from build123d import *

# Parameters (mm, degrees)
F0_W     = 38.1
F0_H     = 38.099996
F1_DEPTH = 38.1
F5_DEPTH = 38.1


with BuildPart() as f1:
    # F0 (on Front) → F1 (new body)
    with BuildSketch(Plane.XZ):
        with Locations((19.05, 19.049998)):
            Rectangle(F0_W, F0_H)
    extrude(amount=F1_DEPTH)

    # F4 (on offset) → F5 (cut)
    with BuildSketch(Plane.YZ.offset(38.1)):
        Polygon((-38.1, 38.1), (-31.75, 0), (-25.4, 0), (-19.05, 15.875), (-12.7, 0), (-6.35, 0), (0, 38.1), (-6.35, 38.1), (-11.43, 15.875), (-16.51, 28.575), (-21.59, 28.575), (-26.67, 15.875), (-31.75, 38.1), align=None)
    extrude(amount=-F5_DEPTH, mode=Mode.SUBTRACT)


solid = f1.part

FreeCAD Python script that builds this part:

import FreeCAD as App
import Part
import Sketcher
from FreeCAD import Vector
Q = App.Units.Quantity


def add_polygon(sketch, points):
    """Adds a closed chain of lines whose ends are joined by coincident constraints."""
    first, n = sketch.GeometryCount, len(points)
    for a, b in zip(points, points[1:] + points[:1]):
        sketch.addGeometry(Part.LineSegment(App.Vector(*a, 0), App.Vector(*b, 0)), False)
    for i in range(n):
        sketch.addConstraint(Sketcher.Constraint("Coincident", first + i, 2, first + (i + 1) % n, 1))

doc = App.newDocument("Part")
body = doc.addObject("PartDesign::Body", "Body")
body.AllowCompound = True

# Sketch on XZ plane
sketch1 = body.newObject("Sketcher::SketchObject", "Sketch")
sketch1.AttachmentSupport = (doc.getObject("XZ_Plane"), [""])
sketch1.MapMode = "FlatFace"
add_polygon(sketch1, [(0, 38), (0, 0), (38, 0), (38, 38)])  # lines 0-3
sketch1.addConstraint(Sketcher.Constraint("Vertical", 0))
sketch1.addConstraint(Sketcher.Constraint("Horizontal", 1))
sketch1.addConstraint(Sketcher.Constraint("Vertical", 2))
sketch1.addConstraint(Sketcher.Constraint("Horizontal", 3))
sketch1.addConstraint(Sketcher.Constraint("Coincident", 0, 2, -1, 1))
sketch1.addConstraint(Sketcher.Constraint("DistanceX", 1, 1, 1, 2, Q("1.5 in")))
sketch1.addConstraint(Sketcher.Constraint("DistanceY", 0, 2, 0, 1, Q("1.4999998 in")))
pad1 = body.newObject("PartDesign::Pad", "Pad")
pad1.Profile = sketch1
pad1.Length = Q("1.5 in")

# Sketch on YZ plane
sketch2 = body.newObject("Sketcher::SketchObject", "Sketch001")
sketch2.AttachmentSupport = (doc.getObject("YZ_Plane"), [""])
sketch2.MapMode = "FlatFace"
sketch2.AttachmentOffset = App.Placement(Vector(0, 0, 1.5 * 25.4), App.Rotation())
add_polygon(sketch2, [(-38, 38), (-32, 0), (-25, 0), (-19, 16), (-13, 0), (-6, 0), (0, 38), (-6, 38), (-11, 16), (-17, 29), (-22, 29), (-27, 16), (-32, 38)])  # lines 0-12
sketch2.addConstraint(Sketcher.Constraint("Horizontal", 1))
sketch2.addConstraint(Sketcher.Constraint("Horizontal", 4))
sketch2.addConstraint(Sketcher.Constraint("Horizontal", 6))
sketch2.addConstraint(Sketcher.Constraint("Horizontal", 9))
sketch2.addConstraint(Sketcher.Constraint("Horizontal", 12))
sketch2.addConstraint(Sketcher.Constraint("PointOnObject", 0, 2, -1))
sketch2.addConstraint(Sketcher.Constraint("PointOnObject", 3, 2, -1))
sketch2.addConstraint(Sketcher.Constraint("PointOnObject", 5, 2, -2))
sketch2.addConstraint(Sketcher.Constraint("Parallel", 3, 8))
sketch2.addConstraint(Sketcher.Constraint("Parallel", 2, 10))
sketch2.addConstraint(Sketcher.Constraint("Horizontal", 2, 2, 7, 2))
sketch2.addConstraint(Sketcher.Constraint("Horizontal", 7, 2, 10, 2))
sketch2.addConstraint(Sketcher.Constraint("Horizontal", 6, 2, 11, 2))
sketch2.addConstraint(Sketcher.Constraint("Vertical", 4, 2, 6, 2))
sketch2.addConstraint(Sketcher.Constraint("Vertical", 0, 2, 11, 2))
sketch2.addConstraint(Sketcher.Constraint("Equal", 1, 4))
sketch2.addConstraint(Sketcher.Constraint("Equal", 4, 6))
sketch2.addConstraint(Sketcher.Constraint("Equal", 6, 12))
sketch2.addConstraint(Sketcher.Constraint("Equal", 2, 3))
sketch2.addConstraint(Sketcher.Constraint("Equal", 7, 11))
sketch2.addConstraint(Sketcher.Constraint("DistanceX", 9, 2, 9, 1, Q("0.2 in")))
sketch2.addConstraint(Sketcher.Constraint("DistanceX", 1, 2, -1, 1, Q("1 in")))
sketch2.addConstraint(Sketcher.Constraint("DistanceX", 1, 1, 1, 2, Q("0.25 in")))
sketch2.addConstraint(Sketcher.Constraint("DistanceY", -1, 1, 5, 2, Q("1.5 in")))
sketch2.addConstraint(Sketcher.Constraint("DistanceX", 2, 2, 7, 2, Q("0.3 in")))
sketch2.addConstraint(Sketcher.Constraint("DistanceY", 2, 2, 8, 2, Q("0.5 in")))
pocket1 = body.newObject("PartDesign::Pocket", "Pocket")
pocket1.Profile = sketch2
pocket1.Length = Q("1.5 in")

doc.recompute()
